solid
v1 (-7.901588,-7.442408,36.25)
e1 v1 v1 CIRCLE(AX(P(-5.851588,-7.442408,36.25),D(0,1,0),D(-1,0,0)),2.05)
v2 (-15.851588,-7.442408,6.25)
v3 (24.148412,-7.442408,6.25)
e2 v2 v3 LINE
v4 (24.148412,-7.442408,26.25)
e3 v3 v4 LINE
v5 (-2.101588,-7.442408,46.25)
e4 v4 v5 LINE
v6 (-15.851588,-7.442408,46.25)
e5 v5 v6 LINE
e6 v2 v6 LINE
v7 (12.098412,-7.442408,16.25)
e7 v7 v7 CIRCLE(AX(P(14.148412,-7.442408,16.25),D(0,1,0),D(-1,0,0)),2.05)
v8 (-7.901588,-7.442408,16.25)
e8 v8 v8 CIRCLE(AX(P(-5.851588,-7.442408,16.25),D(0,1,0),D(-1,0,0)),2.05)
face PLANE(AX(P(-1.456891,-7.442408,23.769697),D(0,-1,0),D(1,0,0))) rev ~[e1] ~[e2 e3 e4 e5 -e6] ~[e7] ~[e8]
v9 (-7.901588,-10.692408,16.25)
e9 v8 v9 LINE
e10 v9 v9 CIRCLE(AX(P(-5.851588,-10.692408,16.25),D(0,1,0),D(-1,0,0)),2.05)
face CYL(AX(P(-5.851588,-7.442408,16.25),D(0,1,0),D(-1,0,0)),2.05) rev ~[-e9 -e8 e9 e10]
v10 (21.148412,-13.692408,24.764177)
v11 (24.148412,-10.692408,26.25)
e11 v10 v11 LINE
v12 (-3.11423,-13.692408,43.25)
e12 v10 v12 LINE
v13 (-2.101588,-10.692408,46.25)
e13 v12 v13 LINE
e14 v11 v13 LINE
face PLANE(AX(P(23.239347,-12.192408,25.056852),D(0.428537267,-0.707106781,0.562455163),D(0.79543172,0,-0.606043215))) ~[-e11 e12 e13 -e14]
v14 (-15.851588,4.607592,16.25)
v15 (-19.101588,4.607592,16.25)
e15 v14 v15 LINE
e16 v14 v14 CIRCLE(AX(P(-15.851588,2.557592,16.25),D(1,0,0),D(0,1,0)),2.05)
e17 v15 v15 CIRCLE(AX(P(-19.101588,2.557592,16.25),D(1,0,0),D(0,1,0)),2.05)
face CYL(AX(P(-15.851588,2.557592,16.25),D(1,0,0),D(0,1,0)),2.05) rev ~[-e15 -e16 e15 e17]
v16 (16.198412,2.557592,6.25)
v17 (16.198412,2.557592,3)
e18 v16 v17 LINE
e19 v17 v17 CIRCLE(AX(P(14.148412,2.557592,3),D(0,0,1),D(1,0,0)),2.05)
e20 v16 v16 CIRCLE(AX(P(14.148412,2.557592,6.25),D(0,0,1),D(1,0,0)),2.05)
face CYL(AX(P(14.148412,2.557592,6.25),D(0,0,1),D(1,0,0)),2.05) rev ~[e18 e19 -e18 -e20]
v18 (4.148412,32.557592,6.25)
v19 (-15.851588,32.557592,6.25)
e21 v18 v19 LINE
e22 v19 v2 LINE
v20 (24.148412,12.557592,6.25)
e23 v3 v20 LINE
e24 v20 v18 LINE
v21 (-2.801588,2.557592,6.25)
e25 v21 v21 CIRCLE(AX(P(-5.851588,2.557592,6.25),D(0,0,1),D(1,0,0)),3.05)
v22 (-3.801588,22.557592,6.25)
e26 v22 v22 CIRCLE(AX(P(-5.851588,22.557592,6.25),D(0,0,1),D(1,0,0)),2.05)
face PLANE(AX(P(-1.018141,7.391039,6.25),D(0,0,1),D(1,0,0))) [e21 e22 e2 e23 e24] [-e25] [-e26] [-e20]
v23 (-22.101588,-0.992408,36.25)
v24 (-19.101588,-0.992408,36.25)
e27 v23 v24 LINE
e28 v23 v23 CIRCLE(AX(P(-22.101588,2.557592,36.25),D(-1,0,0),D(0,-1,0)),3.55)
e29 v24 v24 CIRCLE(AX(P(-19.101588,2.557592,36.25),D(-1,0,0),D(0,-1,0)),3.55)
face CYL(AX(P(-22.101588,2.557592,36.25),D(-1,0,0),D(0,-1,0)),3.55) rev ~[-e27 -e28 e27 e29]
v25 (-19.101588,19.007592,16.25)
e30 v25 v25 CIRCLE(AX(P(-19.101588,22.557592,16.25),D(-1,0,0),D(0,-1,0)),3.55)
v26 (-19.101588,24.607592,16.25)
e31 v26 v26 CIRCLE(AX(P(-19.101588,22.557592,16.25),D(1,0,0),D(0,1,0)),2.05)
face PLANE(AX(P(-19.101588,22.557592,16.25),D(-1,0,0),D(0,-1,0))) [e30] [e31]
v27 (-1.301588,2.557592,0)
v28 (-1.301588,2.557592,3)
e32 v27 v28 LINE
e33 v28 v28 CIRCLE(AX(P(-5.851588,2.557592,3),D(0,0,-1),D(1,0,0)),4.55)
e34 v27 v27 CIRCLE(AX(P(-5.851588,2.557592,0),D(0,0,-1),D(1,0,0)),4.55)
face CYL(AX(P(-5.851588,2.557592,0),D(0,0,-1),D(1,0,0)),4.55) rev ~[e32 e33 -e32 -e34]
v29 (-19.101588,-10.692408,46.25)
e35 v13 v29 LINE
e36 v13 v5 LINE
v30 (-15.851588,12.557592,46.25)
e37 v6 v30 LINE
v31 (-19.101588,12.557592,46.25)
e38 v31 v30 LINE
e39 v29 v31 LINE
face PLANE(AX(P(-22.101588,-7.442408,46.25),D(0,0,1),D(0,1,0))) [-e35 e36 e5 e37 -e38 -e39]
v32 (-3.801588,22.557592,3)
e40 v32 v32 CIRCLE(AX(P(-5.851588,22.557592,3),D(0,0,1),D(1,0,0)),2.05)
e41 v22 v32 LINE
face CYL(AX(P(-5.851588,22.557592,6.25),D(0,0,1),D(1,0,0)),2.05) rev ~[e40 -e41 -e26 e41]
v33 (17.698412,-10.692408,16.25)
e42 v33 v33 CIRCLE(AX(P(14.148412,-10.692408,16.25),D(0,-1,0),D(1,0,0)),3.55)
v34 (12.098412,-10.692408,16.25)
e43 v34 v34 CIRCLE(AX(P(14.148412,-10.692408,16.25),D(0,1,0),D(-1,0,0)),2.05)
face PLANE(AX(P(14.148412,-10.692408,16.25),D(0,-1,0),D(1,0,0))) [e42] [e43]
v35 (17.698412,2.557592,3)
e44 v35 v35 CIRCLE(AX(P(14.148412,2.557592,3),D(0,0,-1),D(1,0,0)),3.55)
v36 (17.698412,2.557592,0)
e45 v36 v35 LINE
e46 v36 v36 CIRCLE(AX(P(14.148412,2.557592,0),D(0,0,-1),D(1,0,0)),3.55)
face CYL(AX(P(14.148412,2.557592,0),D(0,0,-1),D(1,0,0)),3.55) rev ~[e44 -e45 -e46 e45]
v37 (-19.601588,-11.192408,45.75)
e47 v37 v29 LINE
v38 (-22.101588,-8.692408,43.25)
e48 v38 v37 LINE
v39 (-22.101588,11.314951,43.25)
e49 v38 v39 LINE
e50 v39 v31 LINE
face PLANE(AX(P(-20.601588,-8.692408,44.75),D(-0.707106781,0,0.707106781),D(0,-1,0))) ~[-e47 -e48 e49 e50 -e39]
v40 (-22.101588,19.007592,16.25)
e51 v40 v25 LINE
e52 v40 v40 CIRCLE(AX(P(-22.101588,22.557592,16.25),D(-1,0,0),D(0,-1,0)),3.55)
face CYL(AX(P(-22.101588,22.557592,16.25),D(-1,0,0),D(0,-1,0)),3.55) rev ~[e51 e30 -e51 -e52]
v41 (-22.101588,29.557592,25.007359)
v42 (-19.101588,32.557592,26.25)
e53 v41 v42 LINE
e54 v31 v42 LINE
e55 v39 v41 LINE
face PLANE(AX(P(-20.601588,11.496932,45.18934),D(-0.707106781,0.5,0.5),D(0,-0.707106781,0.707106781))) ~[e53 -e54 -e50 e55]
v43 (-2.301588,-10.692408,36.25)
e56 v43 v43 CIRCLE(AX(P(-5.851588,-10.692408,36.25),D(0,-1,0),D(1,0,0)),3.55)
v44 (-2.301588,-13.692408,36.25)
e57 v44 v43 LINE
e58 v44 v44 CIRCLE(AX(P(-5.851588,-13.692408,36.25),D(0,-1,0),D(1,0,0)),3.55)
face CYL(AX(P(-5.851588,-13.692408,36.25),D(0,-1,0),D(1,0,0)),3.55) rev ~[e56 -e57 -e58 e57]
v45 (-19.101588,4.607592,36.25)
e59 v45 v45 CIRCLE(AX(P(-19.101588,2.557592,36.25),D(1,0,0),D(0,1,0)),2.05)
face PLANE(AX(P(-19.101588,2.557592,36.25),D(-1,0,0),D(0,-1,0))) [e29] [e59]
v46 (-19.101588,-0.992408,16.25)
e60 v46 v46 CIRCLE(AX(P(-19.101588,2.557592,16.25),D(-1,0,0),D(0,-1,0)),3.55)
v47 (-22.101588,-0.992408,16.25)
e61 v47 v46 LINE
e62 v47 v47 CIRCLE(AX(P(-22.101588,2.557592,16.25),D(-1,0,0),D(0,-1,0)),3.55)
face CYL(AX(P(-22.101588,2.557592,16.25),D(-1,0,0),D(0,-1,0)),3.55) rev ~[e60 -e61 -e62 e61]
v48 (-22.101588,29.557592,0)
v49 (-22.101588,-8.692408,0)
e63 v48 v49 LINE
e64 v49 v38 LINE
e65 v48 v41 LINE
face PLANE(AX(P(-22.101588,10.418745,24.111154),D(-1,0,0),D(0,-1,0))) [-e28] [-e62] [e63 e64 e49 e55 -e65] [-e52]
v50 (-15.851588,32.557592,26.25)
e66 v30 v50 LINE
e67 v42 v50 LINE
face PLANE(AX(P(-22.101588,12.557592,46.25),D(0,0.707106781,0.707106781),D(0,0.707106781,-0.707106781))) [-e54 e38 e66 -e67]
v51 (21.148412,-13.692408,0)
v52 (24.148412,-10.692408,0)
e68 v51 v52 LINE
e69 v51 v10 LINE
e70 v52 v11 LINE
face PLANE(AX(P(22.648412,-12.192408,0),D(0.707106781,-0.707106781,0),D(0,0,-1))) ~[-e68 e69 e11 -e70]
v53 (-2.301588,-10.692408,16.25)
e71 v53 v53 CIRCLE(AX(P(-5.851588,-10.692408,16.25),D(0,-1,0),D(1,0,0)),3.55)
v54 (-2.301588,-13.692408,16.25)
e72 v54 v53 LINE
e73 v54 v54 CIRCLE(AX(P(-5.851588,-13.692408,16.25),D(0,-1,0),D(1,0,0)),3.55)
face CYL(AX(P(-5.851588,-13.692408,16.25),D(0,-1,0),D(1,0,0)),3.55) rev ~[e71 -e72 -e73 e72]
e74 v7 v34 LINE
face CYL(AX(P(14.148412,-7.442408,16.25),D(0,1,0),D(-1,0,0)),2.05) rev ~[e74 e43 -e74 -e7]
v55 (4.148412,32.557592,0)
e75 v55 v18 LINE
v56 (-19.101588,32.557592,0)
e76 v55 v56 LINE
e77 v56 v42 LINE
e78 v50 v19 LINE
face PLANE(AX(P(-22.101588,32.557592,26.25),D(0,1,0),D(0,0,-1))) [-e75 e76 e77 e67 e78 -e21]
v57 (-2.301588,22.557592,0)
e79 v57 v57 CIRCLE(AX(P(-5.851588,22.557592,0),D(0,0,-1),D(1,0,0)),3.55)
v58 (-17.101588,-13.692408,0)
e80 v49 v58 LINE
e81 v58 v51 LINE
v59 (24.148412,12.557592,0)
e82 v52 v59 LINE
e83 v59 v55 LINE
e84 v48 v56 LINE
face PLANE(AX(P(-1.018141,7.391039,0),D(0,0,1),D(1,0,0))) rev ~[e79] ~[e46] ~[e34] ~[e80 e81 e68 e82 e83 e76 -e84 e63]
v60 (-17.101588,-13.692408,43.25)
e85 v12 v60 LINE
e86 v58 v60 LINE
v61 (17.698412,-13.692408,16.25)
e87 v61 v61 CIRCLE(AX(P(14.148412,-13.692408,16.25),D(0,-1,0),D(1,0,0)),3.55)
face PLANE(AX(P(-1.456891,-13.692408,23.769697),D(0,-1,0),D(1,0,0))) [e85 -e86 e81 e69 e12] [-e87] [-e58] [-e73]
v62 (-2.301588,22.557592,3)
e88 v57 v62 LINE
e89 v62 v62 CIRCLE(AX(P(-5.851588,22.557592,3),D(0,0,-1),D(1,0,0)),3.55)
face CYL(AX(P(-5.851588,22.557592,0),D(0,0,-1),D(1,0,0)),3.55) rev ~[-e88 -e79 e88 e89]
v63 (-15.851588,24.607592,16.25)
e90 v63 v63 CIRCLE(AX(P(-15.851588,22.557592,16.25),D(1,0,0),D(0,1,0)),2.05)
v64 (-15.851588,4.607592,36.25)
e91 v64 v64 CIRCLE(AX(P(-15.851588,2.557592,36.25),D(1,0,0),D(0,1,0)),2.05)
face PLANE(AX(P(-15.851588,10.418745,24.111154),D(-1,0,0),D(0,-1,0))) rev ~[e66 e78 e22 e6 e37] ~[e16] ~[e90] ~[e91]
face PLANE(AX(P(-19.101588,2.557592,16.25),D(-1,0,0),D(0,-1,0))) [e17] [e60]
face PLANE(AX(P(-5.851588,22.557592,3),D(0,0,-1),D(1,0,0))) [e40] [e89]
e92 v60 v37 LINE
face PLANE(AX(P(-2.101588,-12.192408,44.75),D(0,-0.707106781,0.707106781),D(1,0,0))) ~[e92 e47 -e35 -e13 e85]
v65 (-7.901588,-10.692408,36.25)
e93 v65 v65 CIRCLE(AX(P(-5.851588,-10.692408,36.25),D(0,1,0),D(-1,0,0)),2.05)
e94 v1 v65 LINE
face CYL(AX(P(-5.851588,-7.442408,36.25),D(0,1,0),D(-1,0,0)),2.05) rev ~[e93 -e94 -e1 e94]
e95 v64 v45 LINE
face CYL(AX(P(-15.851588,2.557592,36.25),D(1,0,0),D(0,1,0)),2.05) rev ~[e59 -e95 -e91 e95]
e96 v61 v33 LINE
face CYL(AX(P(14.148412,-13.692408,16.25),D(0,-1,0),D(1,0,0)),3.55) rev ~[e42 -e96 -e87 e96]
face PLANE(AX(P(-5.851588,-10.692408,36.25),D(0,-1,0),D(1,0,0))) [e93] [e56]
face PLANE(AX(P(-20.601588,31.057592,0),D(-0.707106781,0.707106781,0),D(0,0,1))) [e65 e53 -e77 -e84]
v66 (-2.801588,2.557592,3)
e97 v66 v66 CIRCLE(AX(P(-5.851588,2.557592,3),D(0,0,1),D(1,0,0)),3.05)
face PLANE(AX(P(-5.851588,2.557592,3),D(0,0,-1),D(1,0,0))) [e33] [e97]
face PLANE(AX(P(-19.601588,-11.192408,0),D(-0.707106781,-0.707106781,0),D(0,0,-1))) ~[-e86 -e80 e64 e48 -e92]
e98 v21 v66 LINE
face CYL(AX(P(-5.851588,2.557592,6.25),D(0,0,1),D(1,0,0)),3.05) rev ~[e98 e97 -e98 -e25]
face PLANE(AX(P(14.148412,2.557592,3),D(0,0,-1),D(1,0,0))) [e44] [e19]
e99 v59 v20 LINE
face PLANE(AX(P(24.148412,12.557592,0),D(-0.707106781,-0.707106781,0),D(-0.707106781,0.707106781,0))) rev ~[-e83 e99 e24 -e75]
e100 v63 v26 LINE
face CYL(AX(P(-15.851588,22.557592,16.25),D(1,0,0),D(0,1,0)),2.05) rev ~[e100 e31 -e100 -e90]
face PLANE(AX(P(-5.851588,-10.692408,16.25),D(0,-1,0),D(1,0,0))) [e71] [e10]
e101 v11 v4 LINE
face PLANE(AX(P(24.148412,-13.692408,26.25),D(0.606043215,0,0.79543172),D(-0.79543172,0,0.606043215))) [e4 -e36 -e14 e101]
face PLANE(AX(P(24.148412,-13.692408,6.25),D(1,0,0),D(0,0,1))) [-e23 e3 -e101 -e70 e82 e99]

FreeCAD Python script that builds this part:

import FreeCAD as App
import Part
import Sketcher


def edges_at(feature, points):
    """Names of the edges that pass closest to the given points."""
    edges = feature.Shape.Edges
    near = lambda p: min(range(len(edges)), key=lambda i: edges[i].distToShape(Part.Vertex(*p))[0])
    return sorted({f"Edge{near(p) + 1}" for p in points})


def add_polygon(sketch, points):
    """Adds a closed chain of lines whose ends are joined by coincident constraints."""
    first, n = sketch.GeometryCount, len(points)
    for a, b in zip(points, points[1:] + points[:1]):
        sketch.addGeometry(Part.LineSegment(App.Vector(*a, 0), App.Vector(*b, 0)), False)
    for i in range(n):
        sketch.addConstraint(Sketcher.Constraint("Coincident", first + i, 2, first + (i + 1) % n, 1))

doc = App.newDocument("Part")
body = doc.addObject("PartDesign::Body", "Body")

# Sketch on XY plane
sketch1 = body.newObject("Sketcher::SketchObject", "Sketch")
sketch1.AttachmentSupport = (doc.getObject("XY_Plane"), [""])
sketch1.MapMode = "FlatFace"
add_polygon(sketch1, [(4, 33), (-22, 33), (-22, -14), (24, -14), (24, 13)])  # lines 0-4
sketch1.addConstraint(Sketcher.Constraint("Horizontal", 0))
sketch1.addConstraint(Sketcher.Constraint("Vertical", 1))
sketch1.addConstraint(Sketcher.Constraint("Horizontal", 2))
sketch1.addConstraint(Sketcher.Constraint("Vertical", 3))
sketch1.addConstraint(Sketcher.Constraint("Equal", 2, 1))
sketch1.addConstraint(Sketcher.Constraint("Equal", 0, 3))
sketch1.addConstraint(Sketcher.Constraint("DistanceY", 3, 2, 0, 2, 20.0))
sketch1.addConstraint(Sketcher.Constraint("DistanceX", 0, 2, 0, 1, 26.25))
sketch1.addConstraint(Sketcher.Constraint("DistanceX", 0, 2, -1, 1, 22.101588))
sketch1.addConstraint(Sketcher.Constraint("DistanceY", -1, 1, 0, 2, 32.557592))
pad1 = body.newObject("PartDesign::Pad", "Pad")
pad1.Profile = sketch1
pad1.Length = 6.25

# Sketch on XY plane
sketch2 = body.newObject("Sketcher::SketchObject", "Sketch001")
sketch2.AttachmentSupport = (doc.getObject("XY_Plane"), [""])
sketch2.MapMode = "FlatFace"
sketch2.AttachmentOffset = App.Placement(App.Vector(0, 0, 6.25), App.Rotation())
sketch2.addGeometry(Part.Circle(App.Vector(-5.9, 22.6, 0), App.Vector(0, 0, 1), 2), False)
sketch2.addGeometry(Part.Circle(App.Vector(-5.9, 2.6, 0), App.Vector(0, 0, 1), 3), False)
sketch2.addGeometry(Part.Circle(App.Vector(14.1, 2.6, 0), App.Vector(0, 0, 1), 2), False)
sketch2.addConstraint(Sketcher.Constraint("Equal", 0, 2))
sketch2.addConstraint(Sketcher.Constraint("Horizontal", 1, 3, 2, 3))
sketch2.addConstraint(Sketcher.Constraint("Vertical", 0, 3, 1, 3))
sketch2.addConstraint(Sketcher.Constraint("Diameter", 0, 4.1))
sketch2.addConstraint(Sketcher.Constraint("Diameter", 1, 6.1))
sketch2.addConstraint(Sketcher.Constraint("DistanceY", 1, 3, 0, 3, 20.0))
sketch2.addConstraint(Sketcher.Constraint("DistanceX", 1, 3, 2, 3, 20.0))
sketch2.addConstraint(Sketcher.Constraint("DistanceX", 0, 3, -1, 1, 5.851588))
sketch2.addConstraint(Sketcher.Constraint("DistanceY", -1, 1, 0, 3, 22.557592))
pocket1 = body.newObject("PartDesign::Pocket", "Pocket")
pocket1.Profile = sketch2
pocket1.Length = 25
body2 = doc.addObject("PartDesign::Body", "Body001")

# Sketch on XZ plane
sketch3 = body2.newObject("Sketcher::SketchObject", "Sketch002")
sketch3.AttachmentSupport = (doc.getObject("XZ_Plane001"), [""])
sketch3.MapMode = "FlatFace"
sketch3.AttachmentOffset = App.Placement(App.Vector(0, 0, 13.692408), App.Rotation())
add_polygon(sketch3, [(-22, 46), (-22, 6), (24, 6), (24, 26), (-2, 46)])  # lines 0-4
sketch3.addConstraint(Sketcher.Constraint("Vertical", 0))
sketch3.addConstraint(Sketcher.Constraint("Horizontal", 1))
sketch3.addConstraint(Sketcher.Constraint("Vertical", 2))
sketch3.addConstraint(Sketcher.Constraint("Horizontal", 4))
sketch3.addConstraint(Sketcher.Constraint("Equal", 4, 2))
sketch3.addConstraint(Sketcher.Constraint("DistanceX", 4, 2, 4, 1, 20.0))
sketch3.addConstraint(Sketcher.Constraint("DistanceY", 0, 2, 0, 1, 40.0))
sketch3.addConstraint(Sketcher.Constraint("DistanceX", 1, 1, 1, 2, 46.25))
sketch3.addConstraint(Sketcher.Constraint("DistanceY", -1, 1, 0, 2, 6.25))
sketch3.addConstraint(Sketcher.Constraint("DistanceX", 0, 2, -1, 1, 22.101588))
pad2 = body2.newObject("PartDesign::Pad", "Pad001")
pad2.Profile = sketch3
pad2.Length = 6.25
pad2.Reversed = True

# Sketch on XZ plane
sketch4 = body2.newObject("Sketcher::SketchObject", "Sketch003")
sketch4.AttachmentSupport = (doc.getObject("XZ_Plane001"), [""])
sketch4.MapMode = "FlatFace"
sketch4.AttachmentOffset = App.Placement(App.Vector(0, 0, 7.442408), App.Rotation())
sketch4.addGeometry(Part.Circle(App.Vector(-5.9, 16.2, 0), App.Vector(0, 0, 1), 2), False)
sketch4.addGeometry(Part.Circle(App.Vector(14.1, 16.2, 0), App.Vector(0, 0, 1), 2), False)
sketch4.addGeometry(Part.Circle(App.Vector(-5.9, 36.2, 0), App.Vector(0, 0, 1), 2), False)
sketch4.addConstraint(Sketcher.Constraint("Equal", 0, 1))
sketch4.addConstraint(Sketcher.Constraint("Equal", 1, 2))
sketch4.addConstraint(Sketcher.Constraint("Horizontal", 0, 3, 1, 3))
sketch4.addConstraint(Sketcher.Constraint("Vertical", 0, 3, 2, 3))
sketch4.addConstraint(Sketcher.Constraint("Diameter", 0, 4.1))
sketch4.addConstraint(Sketcher.Constraint("DistanceX", 0, 3, 1, 3, 20.0))
sketch4.addConstraint(Sketcher.Constraint("DistanceY", 0, 3, 2, 3, 20.0))
sketch4.addConstraint(Sketcher.Constraint("DistanceY", -1, 1, 0, 3, 16.25))
sketch4.addConstraint(Sketcher.Constraint("DistanceX", 0, 3, -1, 1, 5.851588))
pocket2 = body2.newObject("PartDesign::Pocket", "Pocket001")
pocket2.Profile = sketch4
pocket2.Length = 25
pocket2.Reversed = True
body3 = doc.addObject("PartDesign::Body", "Body002")

# Sketch on YZ plane
sketch5 = body3.newObject("Sketcher::SketchObject", "Sketch004")
sketch5.AttachmentSupport = (doc.getObject("YZ_Plane002"), [""])
sketch5.MapMode = "FlatFace"
sketch5.AttachmentOffset = App.Placement(App.Vector(0, 0, -22.101588), App.Rotation())
add_polygon(sketch5, [(33, 6), (-7, 6), (-7, 46), (13, 46), (33, 26)])  # lines 0-4
sketch5.addConstraint(Sketcher.Constraint("Horizontal", 0))
sketch5.addConstraint(Sketcher.Constraint("Vertical", 1))
sketch5.addConstraint(Sketcher.Constraint("Horizontal", 2))
sketch5.addConstraint(Sketcher.Constraint("Vertical", 4))
sketch5.addConstraint(Sketcher.Constraint("Equal", 0, 1))
sketch5.addConstraint(Sketcher.Constraint("Equal", 2, 4))
sketch5.addConstraint(Sketcher.Constraint("DistanceX", 0, 2, 0, 1, 40.0))
sketch5.addConstraint(Sketcher.Constraint("DistanceX", 2, 1, 2, 2, 20.0))
sketch5.addConstraint(Sketcher.Constraint("DistanceY", -1, 1, 0, 2, 6.25))
sketch5.addConstraint(Sketcher.Constraint("DistanceX", 0, 2, -1, 1, 7.442408))
pad3 = body3.newObject("PartDesign::Pad", "Pad002")
pad3.Profile = sketch5
pad3.Length = 6.25

# Sketch on YZ plane
sketch6 = body3.newObject("Sketcher::SketchObject", "Sketch005")
sketch6.AttachmentSupport = (doc.getObject("YZ_Plane002"), [""])
sketch6.MapMode = "FlatFace"
sketch6.AttachmentOffset = App.Placement(App.Vector(0, 0, -15.851588), App.Rotation())
sketch6.addGeometry(Part.Circle(App.Vector(22.6, 16.2, 0), App.Vector(0, 0, 1), 2), False)
sketch6.addGeometry(Part.Circle(App.Vector(2.6, 16.2, 0), App.Vector(0, 0, 1), 2), False)
sketch6.addGeometry(Part.Circle(App.Vector(2.6, 36.2, 0), App.Vector(0, 0, 1), 2), False)
sketch6.addConstraint(Sketcher.Constraint("Equal", 0, 1))
sketch6.addConstraint(Sketcher.Constraint("Equal", 1, 2))
sketch6.addConstraint(Sketcher.Constraint("Horizontal", 0, 3, 1, 3))
sketch6.addConstraint(Sketcher.Constraint("Vertical", 1, 3, 2, 3))
sketch6.addConstraint(Sketcher.Constraint("Diameter", 0, 4.1))
sketch6.addConstraint(Sketcher.Constraint("DistanceX", 1, 3, 0, 3, 20.0))
sketch6.addConstraint(Sketcher.Constraint("DistanceY", 1, 3, 2, 3, 20.0))
sketch6.addConstraint(Sketcher.Constraint("DistanceY", -1, 1, 0, 3, 16.25))
sketch6.addConstraint(Sketcher.Constraint("DistanceX", -1, 1, 0, 3, 22.557592))
pocket3 = body3.newObject("PartDesign::Pocket", "Pocket002")
pocket3.Profile = sketch6
pocket3.Length = 25
doc.recompute()

boolean = body.newObject("PartDesign::Boolean", "Boolean")
boolean.Type = "Fuse"
boolean.addObjects([body2])
doc.recompute()

boolean2 = body.newObject("PartDesign::Boolean", "Boolean001")
boolean2.Type = "Fuse"
boolean2.addObjects([body3])

# Sketch on XZ plane
sketch7 = body.newObject("Sketcher::SketchObject", "Sketch006")
sketch7.AttachmentSupport = (doc.getObject("XZ_Plane"), [""])
sketch7.MapMode = "FlatFace"
sketch7.AttachmentOffset = App.Placement(App.Vector(0, 0, 13.692408), App.Rotation())
sketch7.addGeometry(Part.Circle(App.Vector(-5.9, 36.2, 0), App.Vector(0, 0, 1), 3.5), False)
sketch7.addGeometry(Part.Circle(App.Vector(14.1, 16.2, 0), App.Vector(0, 0, 1), 3.5), False)
sketch7.addGeometry(Part.Circle(App.Vector(-5.9, 16.2, 0), App.Vector(0, 0, 1), 3.5), False)
sketch7.addConstraint(Sketcher.Constraint("Equal", 0, 1))
sketch7.addConstraint(Sketcher.Constraint("Equal", 1, 2))
sketch7.addConstraint(Sketcher.Constraint("Horizontal", 1, 3, 2, 3))
sketch7.addConstraint(Sketcher.Constraint("Vertical", 0, 3, 2, 3))
sketch7.addConstraint(Sketcher.Constraint("Diameter", 0, 7.1))
sketch7.addConstraint(Sketcher.Constraint("DistanceX", 0, 3, 1, 3, 20.0))
sketch7.addConstraint(Sketcher.Constraint("DistanceY", 1, 3, 0, 3, 20.0))
sketch7.addConstraint(Sketcher.Constraint("DistanceY", -1, 1, 0, 3, 36.25))
sketch7.addConstraint(Sketcher.Constraint("DistanceX", 0, 3, -1, 1, 5.851588))
pocket4 = body.newObject("PartDesign::Pocket", "Pocket003")
pocket4.Profile = sketch7
pocket4.Length = 3

# Sketch on YZ plane
sketch8 = body.newObject("Sketcher::SketchObject", "Sketch007")
sketch8.AttachmentSupport = (doc.getObject("YZ_Plane"), [""])
sketch8.MapMode = "FlatFace"
sketch8.AttachmentOffset = App.Placement(App.Vector(0, 0, -22.101588), App.Rotation())
sketch8.addGeometry(Part.Circle(App.Vector(2.6, 36.2, 0), App.Vector(0, 0, 1), 3.5), False)
sketch8.addGeometry(Part.Circle(App.Vector(2.6, 16.2, 0), App.Vector(0, 0, 1), 3.5), False)
sketch8.addGeometry(Part.Circle(App.Vector(22.6, 16.2, 0), App.Vector(0, 0, 1), 3.5), False)
sketch8.addConstraint(Sketcher.Constraint("Equal", 0, 1))
sketch8.addConstraint(Sketcher.Constraint("Equal", 1, 2))
sketch8.addConstraint(Sketcher.Constraint("Horizontal", 1, 3, 2, 3))
sketch8.addConstraint(Sketcher.Constraint("Vertical", 0, 3, 1, 3))
sketch8.addConstraint(Sketcher.Constraint("Diameter", 0, 7.1))
sketch8.addConstraint(Sketcher.Constraint("DistanceY", 1, 3, 0, 3, 20.0))
sketch8.addConstraint(Sketcher.Constraint("DistanceX", 1, 3, 2, 3, 20.0))
sketch8.addConstraint(Sketcher.Constraint("DistanceY", -1, 1, 0, 3, 36.25))
sketch8.addConstraint(Sketcher.Constraint("DistanceX", -1, 1, 0, 3, 2.557592))
pocket5 = body.newObject("PartDesign::Pocket", "Pocket004")
pocket5.Profile = sketch8
pocket5.Length = 3
pocket5.Reversed = True

# Sketch on XY plane
sketch9 = body.newObject("Sketcher::SketchObject", "Sketch008")
sketch9.AttachmentSupport = (doc.getObject("XY_Plane"), [""])
sketch9.MapMode = "FlatFace"
sketch9.addGeometry(Part.Circle(App.Vector(-5.9, 22.6, 0), App.Vector(0, 0, 1), 3.5), False)
sketch9.addGeometry(Part.Circle(App.Vector(-5.9, 2.6, 0), App.Vector(0, 0, 1), 4.5), False)
sketch9.addGeometry(Part.Circle(App.Vector(14.1, 2.6, 0), App.Vector(0, 0, 1), 3.5), False)
sketch9.addConstraint(Sketcher.Constraint("Equal", 0, 2))
sketch9.addConstraint(Sketcher.Constraint("Horizontal", 1, 3, 2, 3))
sketch9.addConstraint(Sketcher.Constraint("Vertical", 0, 3, 1, 3))
sketch9.addConstraint(Sketcher.Constraint("Diameter", 0, 7.1))
sketch9.addConstraint(Sketcher.Constraint("Diameter", 1, 9.1))
sketch9.addConstraint(Sketcher.Constraint("DistanceY", 1, 3, 0, 3, 20.0))
sketch9.addConstraint(Sketcher.Constraint("DistanceX", 1, 3, 2, 3, 20.0))
sketch9.addConstraint(Sketcher.Constraint("DistanceX", 0, 3, -1, 1, 5.851588))
sketch9.addConstraint(Sketcher.Constraint("DistanceY", -1, 1, 0, 3, 22.557592))
pocket6 = body.newObject("PartDesign::Pocket", "Pocket005")
pocket6.Profile = sketch9
pocket6.Length = 3
pocket6.Reversed = True
doc.recompute()

chamfer = body.newObject("PartDesign::Chamfer", "Chamfer")
chamfer.Base = (pocket6, edges_at(pocket6, [(-22.102, -13.692, 23.125)]))
chamfer.Size = 5
doc.recompute()

chamfer2 = body.newObject("PartDesign::Chamfer", "Chamfer001")
chamfer2.Base = (chamfer, edges_at(chamfer, [(-9.602, -13.692, 46.25), (11.023, -13.692, 36.25), (24.148, -13.692, 13.125)]))
chamfer2.Size = 3
doc.recompute()

chamfer3 = body.newObject("PartDesign::Chamfer", "Chamfer002")
chamfer3.Base = (chamfer2, edges_at(chamfer2, [(-22.102, 1.933, 46.25), (-22.102, 22.558, 36.25), (-22.102, 32.558, 13.125)]))
chamfer3.Size = 3

doc.recompute()
